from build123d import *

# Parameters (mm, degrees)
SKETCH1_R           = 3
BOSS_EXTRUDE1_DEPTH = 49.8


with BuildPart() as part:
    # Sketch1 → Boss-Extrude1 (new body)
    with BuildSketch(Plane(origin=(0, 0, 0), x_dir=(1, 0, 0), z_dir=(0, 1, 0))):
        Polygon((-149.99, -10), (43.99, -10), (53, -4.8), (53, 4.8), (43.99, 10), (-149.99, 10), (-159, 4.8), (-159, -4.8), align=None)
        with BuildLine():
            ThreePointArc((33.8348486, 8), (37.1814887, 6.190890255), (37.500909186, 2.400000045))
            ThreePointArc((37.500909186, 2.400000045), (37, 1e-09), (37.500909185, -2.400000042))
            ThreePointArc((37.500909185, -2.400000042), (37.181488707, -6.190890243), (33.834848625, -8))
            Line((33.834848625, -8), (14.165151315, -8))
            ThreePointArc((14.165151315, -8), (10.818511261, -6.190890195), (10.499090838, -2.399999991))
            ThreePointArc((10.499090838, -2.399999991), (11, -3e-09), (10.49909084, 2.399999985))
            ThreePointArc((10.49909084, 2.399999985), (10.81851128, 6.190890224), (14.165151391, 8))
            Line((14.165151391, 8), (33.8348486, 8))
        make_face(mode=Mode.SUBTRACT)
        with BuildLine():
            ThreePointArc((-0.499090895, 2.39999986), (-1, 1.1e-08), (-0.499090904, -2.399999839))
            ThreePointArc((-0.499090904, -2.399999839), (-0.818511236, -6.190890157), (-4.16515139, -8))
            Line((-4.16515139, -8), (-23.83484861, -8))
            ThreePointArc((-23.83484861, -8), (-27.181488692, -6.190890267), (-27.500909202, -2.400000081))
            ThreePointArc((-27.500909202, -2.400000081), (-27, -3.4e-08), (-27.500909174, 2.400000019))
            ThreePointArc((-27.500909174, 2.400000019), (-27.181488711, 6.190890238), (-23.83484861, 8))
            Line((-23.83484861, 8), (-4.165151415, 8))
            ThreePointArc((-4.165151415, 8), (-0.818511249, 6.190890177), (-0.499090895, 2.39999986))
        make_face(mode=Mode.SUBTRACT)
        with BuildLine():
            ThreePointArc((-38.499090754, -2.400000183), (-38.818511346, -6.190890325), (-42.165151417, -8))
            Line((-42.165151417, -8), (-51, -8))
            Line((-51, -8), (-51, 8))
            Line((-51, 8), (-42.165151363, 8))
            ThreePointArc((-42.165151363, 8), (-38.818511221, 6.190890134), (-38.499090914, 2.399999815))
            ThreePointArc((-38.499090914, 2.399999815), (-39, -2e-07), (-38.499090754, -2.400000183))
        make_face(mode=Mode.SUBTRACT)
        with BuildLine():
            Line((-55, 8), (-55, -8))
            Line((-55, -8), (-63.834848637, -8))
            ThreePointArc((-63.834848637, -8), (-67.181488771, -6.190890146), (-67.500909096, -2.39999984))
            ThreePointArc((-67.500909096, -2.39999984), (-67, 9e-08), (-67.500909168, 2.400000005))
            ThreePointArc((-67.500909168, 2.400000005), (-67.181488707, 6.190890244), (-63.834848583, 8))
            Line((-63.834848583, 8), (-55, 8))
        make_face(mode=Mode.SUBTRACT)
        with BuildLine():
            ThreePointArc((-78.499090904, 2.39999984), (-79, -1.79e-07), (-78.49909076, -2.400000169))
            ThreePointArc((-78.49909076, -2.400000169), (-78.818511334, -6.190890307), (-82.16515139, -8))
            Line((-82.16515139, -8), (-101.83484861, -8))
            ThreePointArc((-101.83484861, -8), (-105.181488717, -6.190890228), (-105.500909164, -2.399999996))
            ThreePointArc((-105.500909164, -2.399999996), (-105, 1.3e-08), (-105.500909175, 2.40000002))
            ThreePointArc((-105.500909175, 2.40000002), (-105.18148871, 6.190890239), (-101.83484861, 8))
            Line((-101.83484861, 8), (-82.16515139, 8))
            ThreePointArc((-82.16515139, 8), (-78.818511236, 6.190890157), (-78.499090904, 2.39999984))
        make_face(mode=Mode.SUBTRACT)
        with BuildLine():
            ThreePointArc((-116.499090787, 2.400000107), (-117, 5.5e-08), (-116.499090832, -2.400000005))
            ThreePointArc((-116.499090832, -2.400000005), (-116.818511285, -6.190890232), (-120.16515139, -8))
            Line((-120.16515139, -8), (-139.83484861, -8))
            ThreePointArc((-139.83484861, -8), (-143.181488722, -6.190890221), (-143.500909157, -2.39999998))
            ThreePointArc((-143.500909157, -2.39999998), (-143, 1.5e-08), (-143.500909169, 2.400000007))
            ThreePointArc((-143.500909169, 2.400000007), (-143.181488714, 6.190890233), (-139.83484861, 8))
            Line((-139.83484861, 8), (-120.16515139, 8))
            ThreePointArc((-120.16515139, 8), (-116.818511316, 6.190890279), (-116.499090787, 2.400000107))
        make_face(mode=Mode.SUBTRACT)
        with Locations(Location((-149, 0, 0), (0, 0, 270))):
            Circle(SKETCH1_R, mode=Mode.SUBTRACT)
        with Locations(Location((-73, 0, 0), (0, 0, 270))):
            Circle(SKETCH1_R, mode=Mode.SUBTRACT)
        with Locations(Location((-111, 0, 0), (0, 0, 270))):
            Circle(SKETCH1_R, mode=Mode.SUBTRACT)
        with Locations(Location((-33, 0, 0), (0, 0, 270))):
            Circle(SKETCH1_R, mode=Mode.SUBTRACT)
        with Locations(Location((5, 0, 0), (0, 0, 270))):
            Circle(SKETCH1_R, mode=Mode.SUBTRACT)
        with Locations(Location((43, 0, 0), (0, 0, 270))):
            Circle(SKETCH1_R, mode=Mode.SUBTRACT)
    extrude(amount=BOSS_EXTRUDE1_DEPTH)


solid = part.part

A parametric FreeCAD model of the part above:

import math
import FreeCAD as App
import Part
import Sketcher


def add_polygon(sketch, points):
    """Adds a closed chain of lines whose ends are joined by coincident constraints."""
    first, n = sketch.GeometryCount, len(points)
    for a, b in zip(points, points[1:] + points[:1]):
        sketch.addGeometry(Part.LineSegment(App.Vector(*a, 0), App.Vector(*b, 0)), False)
    for i in range(n):
        sketch.addConstraint(Sketcher.Constraint("Coincident", first + i, 2, first + (i + 1) % n, 1))

doc = App.newDocument("Part")
body = doc.addObject("PartDesign::Body", "Body")

# Sketch on XZ plane
sketch1 = body.newObject("Sketcher::SketchObject", "Sketch")
sketch1.AttachmentSupport = (doc.getObject("XZ_Plane"), [""])
sketch1.MapMode = "FlatFace"
add_polygon(sketch1, [(-150, 10), (44, 10), (53, 4.8), (53, -4.8), (44, -10), (-150, -10), (-159, -4.8), (-159, 4.8)])  # lines 0-7
sketch1.addGeometry(Part.Circle(App.Vector(-149, 0, 0), App.Vector(0, 0, 1), 3), False)  # 8
sketch1.addGeometry(Part.ArcOfCircle(Part.Circle(App.Vector(-120.2, -4, 0), App.Vector(0, 0, 1), 4), math.radians(-90), math.radians(24)), False)  # 9
sketch1.addGeometry(Part.ArcOfCircle(Part.Circle(App.Vector(-111, 0, 0), App.Vector(0, 0, 1), 6), math.radians(156), math.radians(204)), False)  # 10
sketch1.addGeometry(Part.ArcOfCircle(Part.Circle(App.Vector(-120.2, 4, 0), App.Vector(0, 0, 1), 4), math.radians(-24), math.radians(90)), False)  # 11
sketch1.addGeometry(Part.LineSegment(App.Vector(-120.2, 8, 0), App.Vector(-139.8, 8, 0)), False)  # 12
sketch1.addGeometry(Part.ArcOfCircle(Part.Circle(App.Vector(-139.8, 4, 0), App.Vector(0, 0, 1), 4), math.radians(90), math.radians(204)), False)  # 13
sketch1.addGeometry(Part.ArcOfCircle(Part.Circle(App.Vector(-149, 0, 0), App.Vector(0, 0, 1), 6), math.radians(-24), math.radians(24)), False)  # 14
sketch1.addGeometry(Part.ArcOfCircle(Part.Circle(App.Vector(-139.8, -4, 0), App.Vector(0, 0, 1), 4), math.radians(156), math.radians(270)), False)  # 15
sketch1.addGeometry(Part.LineSegment(App.Vector(-139.8, -8, 0), App.Vector(-120.2, -8, 0)), False)  # 16
sketch1.addGeometry(Part.Circle(App.Vector(-111, 0, 0), App.Vector(0, 0, 1), 3), False)  # 17
sketch1.addGeometry(Part.ArcOfCircle(Part.Circle(App.Vector(-82.2, -4, 0), App.Vector(0, 0, 1), 4), math.radians(-90), math.radians(24)), False)  # 18
sketch1.addGeometry(Part.ArcOfCircle(Part.Circle(App.Vector(-73, 0, 0), App.Vector(0, 0, 1), 6), math.radians(156), math.radians(204)), False)  # 19
sketch1.addGeometry(Part.ArcOfCircle(Part.Circle(App.Vector(-82.2, 4, 0), App.Vector(0, 0, 1), 4), math.radians(-24), math.radians(90)), False)  # 20
sketch1.addGeometry(Part.LineSegment(App.Vector(-82.2, 8, 0), App.Vector(-101.8, 8, 0)), False)  # 21
sketch1.addGeometry(Part.ArcOfCircle(Part.Circle(App.Vector(-101.8, 4, 0), App.Vector(0, 0, 1), 4), math.radians(90), math.radians(204)), False)  # 22
sketch1.addGeometry(Part.ArcOfCircle(Part.Circle(App.Vector(-111, 0, 0), App.Vector(0, 0, 1), 6), math.radians(-24), math.radians(24)), False)  # 23
sketch1.addGeometry(Part.ArcOfCircle(Part.Circle(App.Vector(-101.8, -4, 0), App.Vector(0, 0, 1), 4), math.radians(156), math.radians(270)), False)  # 24
sketch1.addGeometry(Part.LineSegment(App.Vector(-101.8, -8, 0), App.Vector(-82.2, -8, 0)), False)  # 25
sketch1.addGeometry(Part.Circle(App.Vector(-73, 0, 0), App.Vector(0, 0, 1), 3), False)  # 26
sketch1.addGeometry(Part.LineSegment(App.Vector(-63.8, -8, 0), App.Vector(-55, -8, 0)), False)  # 27
sketch1.addGeometry(Part.LineSegment(App.Vector(-55, -8, 0), App.Vector(-55, 8, 0)), False)  # 28
sketch1.addGeometry(Part.LineSegment(App.Vector(-55, 8, 0), App.Vector(-63.8, 8, 0)), False)  # 29
sketch1.addGeometry(Part.ArcOfCircle(Part.Circle(App.Vector(-63.8, 4, 0), App.Vector(0, 0, 1), 4), math.radians(90), math.radians(204)), False)  # 30
sketch1.addGeometry(Part.ArcOfCircle(Part.Circle(App.Vector(-73, 0, 0), App.Vector(0, 0, 1), 6), math.radians(-24), math.radians(24)), False)  # 31
sketch1.addGeometry(Part.ArcOfCircle(Part.Circle(App.Vector(-63.8, -4, 0), App.Vector(0, 0, 1), 4), math.radians(156), math.radians(270)), False)  # 32
sketch1.addGeometry(Part.ArcOfCircle(Part.Circle(App.Vector(-33, 0, 0), App.Vector(0, 0, 1), 6), math.radians(156), math.radians(204)), False)  # 33
sketch1.addGeometry(Part.ArcOfCircle(Part.Circle(App.Vector(-42.2, 4, 0), App.Vector(0, 0, 1), 4), math.radians(-24), math.radians(90)), False)  # 34
sketch1.addGeometry(Part.LineSegment(App.Vector(-42.2, 8, 0), App.Vector(-51, 8, 0)), False)  # 35
sketch1.addGeometry(Part.LineSegment(App.Vector(-51, 8, 0), App.Vector(-51, -8, 0)), False)  # 36
sketch1.addGeometry(Part.LineSegment(App.Vector(-51, -8, 0), App.Vector(-42.2, -8, 0)), False)  # 37
sketch1.addGeometry(Part.ArcOfCircle(Part.Circle(App.Vector(-42.2, -4, 0), App.Vector(0, 0, 1), 4), math.radians(-90), math.radians(24)), False)  # 38
sketch1.addGeometry(Part.Circle(App.Vector(-33, 0, 0), App.Vector(0, 0, 1), 3), False)  # 39
sketch1.addGeometry(Part.ArcOfCircle(Part.Circle(App.Vector(-4.2, -4, 0), App.Vector(0, 0, 1), 4), math.radians(-90), math.radians(24)), False)  # 40
sketch1.addGeometry(Part.ArcOfCircle(Part.Circle(App.Vector(5, 0, 0), App.Vector(0, 0, 1), 6), math.radians(156), math.radians(204)), False)  # 41
sketch1.addGeometry(Part.ArcOfCircle(Part.Circle(App.Vector(-4.2, 4, 0), App.Vector(0, 0, 1), 4), math.radians(-24), math.radians(90)), False)  # 42
sketch1.addGeometry(Part.LineSegment(App.Vector(-4.2, 8, 0), App.Vector(-23.8, 8, 0)), False)  # 43
sketch1.addGeometry(Part.ArcOfCircle(Part.Circle(App.Vector(-23.8, 4, 0), App.Vector(0, 0, 1), 4), math.radians(90), math.radians(204)), False)  # 44
sketch1.addGeometry(Part.ArcOfCircle(Part.Circle(App.Vector(-33, 0, 0), App.Vector(0, 0, 1), 6), math.radians(-24), math.radians(24)), False)  # 45
sketch1.addGeometry(Part.ArcOfCircle(Part.Circle(App.Vector(-23.8, -4, 0), App.Vector(0, 0, 1), 4), math.radians(156), math.radians(270)), False)  # 46
sketch1.addGeometry(Part.LineSegment(App.Vector(-23.8, -8, 0), App.Vector(-4.2, -8, 0)), False)  # 47
sketch1.addGeometry(Part.Circle(App.Vector(5, 0, 0), App.Vector(0, 0, 1), 3), False)  # 48
sketch1.addGeometry(Part.LineSegment(App.Vector(14.2, -8, 0), App.Vector(33.8, -8, 0)), False)  # 49
sketch1.addGeometry(Part.ArcOfCircle(Part.Circle(App.Vector(33.8, -4, 0), App.Vector(0, 0, 1), 4), math.radians(-90), math.radians(24)), False)  # 50
sketch1.addGeometry(Part.ArcOfCircle(Part.Circle(App.Vector(43, 0, 0), App.Vector(0, 0, 1), 6), math.radians(156), math.radians(204)), False)  # 51
sketch1.addGeometry(Part.ArcOfCircle(Part.Circle(App.Vector(33.8, 4, 0), App.Vector(0, 0, 1), 4), math.radians(-24), math.radians(90)), False)  # 52
sketch1.addGeometry(Part.LineSegment(App.Vector(33.8, 8, 0), App.Vector(14.2, 8, 0)), False)  # 53
sketch1.addGeometry(Part.ArcOfCircle(Part.Circle(App.Vector(14.2, 4, 0), App.Vector(0, 0, 1), 4), math.radians(90), math.radians(204)), False)  # 54
sketch1.addGeometry(Part.ArcOfCircle(Part.Circle(App.Vector(5, 0, 0), App.Vector(0, 0, 1), 6), math.radians(-24), math.radians(24)), False)  # 55
sketch1.addGeometry(Part.ArcOfCircle(Part.Circle(App.Vector(14.2, -4, 0), App.Vector(0, 0, 1), 4), math.radians(156), math.radians(270)), False)  # 56
sketch1.addGeometry(Part.Circle(App.Vector(43, 0, 0), App.Vector(0, 0, 1), 3), False)  # 57
sketch1.addConstraint(Sketcher.Constraint("Tangent", 9, 2, 10, 2))
sketch1.addConstraint(Sketcher.Constraint("Tangent", 10, 1, 11, 1))
sketch1.addConstraint(Sketcher.Constraint("Tangent", 11, 2, 12, 1))
sketch1.addConstraint(Sketcher.Constraint("Tangent", 12, 2, 13, 1))
sketch1.addConstraint(Sketcher.Constraint("Tangent", 13, 2, 14, 2))
sketch1.addConstraint(Sketcher.Constraint("Tangent", 14, 1, 15, 1))
sketch1.addConstraint(Sketcher.Constraint("Tangent", 15, 2, 16, 1))
sketch1.addConstraint(Sketcher.Constraint("Tangent", 16, 2, 9, 1))
sketch1.addConstraint(Sketcher.Constraint("Tangent", 18, 2, 19, 2))
sketch1.addConstraint(Sketcher.Constraint("Tangent", 19, 1, 20, 1))
sketch1.addConstraint(Sketcher.Constraint("Tangent", 20, 2, 21, 1))
sketch1.addConstraint(Sketcher.Constraint("Tangent", 21, 2, 22, 1))
sketch1.addConstraint(Sketcher.Constraint("Tangent", 22, 2, 23, 2))
sketch1.addConstraint(Sketcher.Constraint("Tangent", 23, 1, 24, 1))
sketch1.addConstraint(Sketcher.Constraint("Tangent", 24, 2, 25, 1))
sketch1.addConstraint(Sketcher.Constraint("Tangent", 25, 2, 18, 1))
sketch1.addConstraint(Sketcher.Constraint("Coincident", 27, 2, 28, 1))
sketch1.addConstraint(Sketcher.Constraint("Coincident", 28, 2, 29, 1))
sketch1.addConstraint(Sketcher.Constraint("Tangent", 29, 2, 30, 1))
sketch1.addConstraint(Sketcher.Constraint("Tangent", 30, 2, 31, 2))
sketch1.addConstraint(Sketcher.Constraint("Tangent", 31, 1, 32, 1))
sketch1.addConstraint(Sketcher.Constraint("Tangent", 32, 2, 27, 1))
sketch1.addConstraint(Sketcher.Constraint("Tangent", 33, 1, 34, 1))
sketch1.addConstraint(Sketcher.Constraint("Tangent", 34, 2, 35, 1))
sketch1.addConstraint(Sketcher.Constraint("Coincident", 35, 2, 36, 1))
sketch1.addConstraint(Sketcher.Constraint("Coincident", 36, 2, 37, 1))
sketch1.addConstraint(Sketcher.Constraint("Tangent", 37, 2, 38, 1))
sketch1.addConstraint(Sketcher.Constraint("Tangent", 38, 2, 33, 2))
sketch1.addConstraint(Sketcher.Constraint("Tangent", 40, 2, 41, 2))
sketch1.addConstraint(Sketcher.Constraint("Tangent", 41, 1, 42, 1))
sketch1.addConstraint(Sketcher.Constraint("Tangent", 42, 2, 43, 1))
sketch1.addConstraint(Sketcher.Constraint("Tangent", 43, 2, 44, 1))
sketch1.addConstraint(Sketcher.Constraint("Tangent", 44, 2, 45, 2))
sketch1.addConstraint(Sketcher.Constraint("Tangent", 45, 1, 46, 1))
sketch1.addConstraint(Sketcher.Constraint("Tangent", 46, 2, 47, 1))
sketch1.addConstraint(Sketcher.Constraint("Tangent", 47, 2, 40, 1))
sketch1.addConstraint(Sketcher.Constraint("Tangent", 49, 2, 50, 1))
sketch1.addConstraint(Sketcher.Constraint("Tangent", 50, 2, 51, 2))
sketch1.addConstraint(Sketcher.Constraint("Tangent", 51, 1, 52, 1))
sketch1.addConstraint(Sketcher.Constraint("Tangent", 52, 2, 53, 1))
sketch1.addConstraint(Sketcher.Constraint("Tangent", 53, 2, 54, 1))
sketch1.addConstraint(Sketcher.Constraint("Tangent", 54, 2, 55, 2))
sketch1.addConstraint(Sketcher.Constraint("Tangent", 55, 1, 56, 1))
sketch1.addConstraint(Sketcher.Constraint("Tangent", 56, 2, 49, 1))
sketch1.addConstraint(Sketcher.Constraint("Horizontal", 0))
sketch1.addConstraint(Sketcher.Constraint("Vertical", 2))
sketch1.addConstraint(Sketcher.Constraint("Horizontal", 4))
sketch1.addConstraint(Sketcher.Constraint("Vertical", 6))
sketch1.addConstraint(Sketcher.Constraint("Horizontal", 12))
sketch1.addConstraint(Sketcher.Constraint("Horizontal", 16))
sketch1.addConstraint(Sketcher.Constraint("Horizontal", 21))
sketch1.addConstraint(Sketcher.Constraint("Horizontal", 25))
sketch1.addConstraint(Sketcher.Constraint("Horizontal", 27))
sketch1.addConstraint(Sketcher.Constraint("Vertical", 28))
sketch1.addConstraint(Sketcher.Constraint("Horizontal", 29))
sketch1.addConstraint(Sketcher.Constraint("Horizontal", 35))
sketch1.addConstraint(Sketcher.Constraint("Vertical", 36))
sketch1.addConstraint(Sketcher.Constraint("Horizontal", 37))
sketch1.addConstraint(Sketcher.Constraint("Horizontal", 43))
sketch1.addConstraint(Sketcher.Constraint("Horizontal", 47))
sketch1.addConstraint(Sketcher.Constraint("Horizontal", 49))
sketch1.addConstraint(Sketcher.Constraint("Horizontal", 53))
sketch1.addConstraint(Sketcher.Constraint("Coincident", 14, 3, 8, 3))
sketch1.addConstraint(Sketcher.Constraint("Coincident", 17, 3, 10, 3))
sketch1.addConstraint(Sketcher.Constraint("Coincident", 23, 3, 10, 3))
sketch1.addConstraint(Sketcher.Constraint("Coincident", 26, 3, 19, 3))
sketch1.addConstraint(Sketcher.Constraint("Coincident", 31, 3, 19, 3))
sketch1.addConstraint(Sketcher.Constraint("Coincident", 39, 3, 33, 3))
sketch1.addConstraint(Sketcher.Constraint("Coincident", 45, 3, 33, 3))
sketch1.addConstraint(Sketcher.Constraint("Coincident", 48, 3, 41, 3))
sketch1.addConstraint(Sketcher.Constraint("Coincident", 55, 3, 41, 3))
sketch1.addConstraint(Sketcher.Constraint("Coincident", 57, 3, 51, 3))
sketch1.addConstraint(Sketcher.Constraint("Equal", 9, 11))
sketch1.addConstraint(Sketcher.Constraint("Equal", 11, 13))
sketch1.addConstraint(Sketcher.Constraint("Equal", 10, 14))
sketch1.addConstraint(Sketcher.Constraint("Equal", 13, 15))
sketch1.addConstraint(Sketcher.Constraint("Equal", 8, 17))
sketch1.addConstraint(Sketcher.Constraint("Equal", 15, 18))
sketch1.addConstraint(Sketcher.Constraint("Equal", 14, 19))
sketch1.addConstraint(Sketcher.Constraint("Equal", 18, 20))
sketch1.addConstraint(Sketcher.Constraint("Equal", 20, 22))
sketch1.addConstraint(Sketcher.Constraint("Equal", 19, 23))
sketch1.addConstraint(Sketcher.Constraint("Equal", 22, 24))
sketch1.addConstraint(Sketcher.Constraint("Equal", 17, 26))
sketch1.addConstraint(Sketcher.Constraint("Equal", 24, 30))
sketch1.addConstraint(Sketcher.Constraint("Equal", 23, 31))
sketch1.addConstraint(Sketcher.Constraint("Equal", 30, 32))
sketch1.addConstraint(Sketcher.Constraint("Equal", 31, 33))
sketch1.addConstraint(Sketcher.Constraint("Equal", 32, 34))
sketch1.addConstraint(Sketcher.Constraint("Equal", 34, 38))
sketch1.addConstraint(Sketcher.Constraint("Equal", 26, 39))
sketch1.addConstraint(Sketcher.Constraint("Equal", 38, 40))
sketch1.addConstraint(Sketcher.Constraint("Equal", 33, 41))
sketch1.addConstraint(Sketcher.Constraint("Equal", 40, 42))
sketch1.addConstraint(Sketcher.Constraint("Equal", 42, 44))
sketch1.addConstraint(Sketcher.Constraint("Equal", 41, 45))
sketch1.addConstraint(Sketcher.Constraint("Equal", 44, 46))
sketch1.addConstraint(Sketcher.Constraint("Equal", 39, 48))
sketch1.addConstraint(Sketcher.Constraint("Equal", 46, 50))
sketch1.addConstraint(Sketcher.Constraint("Equal", 45, 51))
sketch1.addConstraint(Sketcher.Constraint("Equal", 50, 52))
sketch1.addConstraint(Sketcher.Constraint("Equal", 52, 54))
sketch1.addConstraint(Sketcher.Constraint("Equal", 51, 55))
sketch1.addConstraint(Sketcher.Constraint("Equal", 54, 56))
sketch1.addConstraint(Sketcher.Constraint("Equal", 48, 57))
sketch1.addConstraint(Sketcher.Constraint("Symmetric", 9, 3, 11, 3, -1))
sketch1.addConstraint(Sketcher.Constraint("Symmetric", 18, 3, 20, 3, -1))
sketch1.addConstraint(Sketcher.Constraint("Symmetric", 34, 3, 38, 3, -1))
sketch1.addConstraint(Sketcher.Constraint("Symmetric", 40, 3, 42, 3, -1))
sketch1.addConstraint(Sketcher.Constraint("Symmetric", 50, 3, 52, 3, -1))
sketch1.addConstraint(Sketcher.Constraint("Symmetric", 0, 2, 3, 2, -1))
sketch1.addConstraint(Sketcher.Constraint("PointOnObject", 8, 3, -1))
sketch1.addConstraint(Sketcher.Constraint("Parallel", 1, 5))
sketch1.addConstraint(Sketcher.Constraint("Parallel", 3, 7))
sketch1.addConstraint(Sketcher.Constraint("Horizontal", 15, 3, 18, 3))
sketch1.addConstraint(Sketcher.Constraint("Horizontal", 22, 3, 30, 3))
sketch1.addConstraint(Sketcher.Constraint("Horizontal", 24, 3, 32, 3))
sketch1.addConstraint(Sketcher.Constraint("Horizontal", 30, 3, 34, 3))
sketch1.addConstraint(Sketcher.Constraint("Horizontal", 38, 3, 40, 3))
sketch1.addConstraint(Sketcher.Constraint("Horizontal", 46, 3, 50, 3))
sketch1.addConstraint(Sketcher.Constraint("Horizontal", 2, 2, 5, 2))
sketch1.addConstraint(Sketcher.Constraint("Horizontal", 1, 2, 6, 2))
sketch1.addConstraint(Sketcher.Constraint("Vertical", 4, 2, 7, 2))
sketch1.addConstraint(Sketcher.Constraint("Equal", 16, 21))
sketch1.addConstraint(Sketcher.Constraint("Equal", 29, 35))
sketch1.addConstraint(Sketcher.Constraint("Equal", 25, 43))
sketch1.addConstraint(Sketcher.Constraint("Equal", 47, 49))
sketch1.addConstraint(Sketcher.Constraint("Diameter", 8, 6.0))
sketch1.addConstraint(Sketcher.Constraint("Radius", 9, 4.0))
sketch1.addConstraint(Sketcher.Constraint("Radius", 10, 6.0))
sketch1.addConstraint(Sketcher.Constraint("DistanceY", 28, 1, 28, 2, 16.0))
sketch1.addConstraint(Sketcher.Constraint("DistanceY", 2, 2, 2, 1, 9.6))
sketch1.addConstraint(Sketcher.Constraint("DistanceX", 8, 3, -1, 1, 149.0))
sketch1.addConstraint(Sketcher.Constraint("DistanceX", 10, 3, -1, 1, 111.0))
sketch1.addConstraint(Sketcher.Constraint("DistanceX", 33, 3, -1, 1, 33.0))
sketch1.addConstraint(Sketcher.Constraint("DistanceY", -1, 1, 0, 2, 10.0))
sketch1.addConstraint(Sketcher.Constraint("DistanceX", -1, 1, 1, 2, 53.0))
sketch1.addConstraint(Sketcher.Constraint("DistanceX", 5, 2, -1, 1, 159.0))
sketch1.addConstraint(Sketcher.Constraint("DistanceX", 27, 2, -1, 1, 55.0))
sketch1.addConstraint(Sketcher.Constraint("DistanceX", 0, 1, 0, 2, 193.98))
pad1 = body.newObject("PartDesign::Pad", "Pad")
pad1.Profile = sketch1
pad1.Length = 49.8
pad1.Reversed = True

doc.recompute()
